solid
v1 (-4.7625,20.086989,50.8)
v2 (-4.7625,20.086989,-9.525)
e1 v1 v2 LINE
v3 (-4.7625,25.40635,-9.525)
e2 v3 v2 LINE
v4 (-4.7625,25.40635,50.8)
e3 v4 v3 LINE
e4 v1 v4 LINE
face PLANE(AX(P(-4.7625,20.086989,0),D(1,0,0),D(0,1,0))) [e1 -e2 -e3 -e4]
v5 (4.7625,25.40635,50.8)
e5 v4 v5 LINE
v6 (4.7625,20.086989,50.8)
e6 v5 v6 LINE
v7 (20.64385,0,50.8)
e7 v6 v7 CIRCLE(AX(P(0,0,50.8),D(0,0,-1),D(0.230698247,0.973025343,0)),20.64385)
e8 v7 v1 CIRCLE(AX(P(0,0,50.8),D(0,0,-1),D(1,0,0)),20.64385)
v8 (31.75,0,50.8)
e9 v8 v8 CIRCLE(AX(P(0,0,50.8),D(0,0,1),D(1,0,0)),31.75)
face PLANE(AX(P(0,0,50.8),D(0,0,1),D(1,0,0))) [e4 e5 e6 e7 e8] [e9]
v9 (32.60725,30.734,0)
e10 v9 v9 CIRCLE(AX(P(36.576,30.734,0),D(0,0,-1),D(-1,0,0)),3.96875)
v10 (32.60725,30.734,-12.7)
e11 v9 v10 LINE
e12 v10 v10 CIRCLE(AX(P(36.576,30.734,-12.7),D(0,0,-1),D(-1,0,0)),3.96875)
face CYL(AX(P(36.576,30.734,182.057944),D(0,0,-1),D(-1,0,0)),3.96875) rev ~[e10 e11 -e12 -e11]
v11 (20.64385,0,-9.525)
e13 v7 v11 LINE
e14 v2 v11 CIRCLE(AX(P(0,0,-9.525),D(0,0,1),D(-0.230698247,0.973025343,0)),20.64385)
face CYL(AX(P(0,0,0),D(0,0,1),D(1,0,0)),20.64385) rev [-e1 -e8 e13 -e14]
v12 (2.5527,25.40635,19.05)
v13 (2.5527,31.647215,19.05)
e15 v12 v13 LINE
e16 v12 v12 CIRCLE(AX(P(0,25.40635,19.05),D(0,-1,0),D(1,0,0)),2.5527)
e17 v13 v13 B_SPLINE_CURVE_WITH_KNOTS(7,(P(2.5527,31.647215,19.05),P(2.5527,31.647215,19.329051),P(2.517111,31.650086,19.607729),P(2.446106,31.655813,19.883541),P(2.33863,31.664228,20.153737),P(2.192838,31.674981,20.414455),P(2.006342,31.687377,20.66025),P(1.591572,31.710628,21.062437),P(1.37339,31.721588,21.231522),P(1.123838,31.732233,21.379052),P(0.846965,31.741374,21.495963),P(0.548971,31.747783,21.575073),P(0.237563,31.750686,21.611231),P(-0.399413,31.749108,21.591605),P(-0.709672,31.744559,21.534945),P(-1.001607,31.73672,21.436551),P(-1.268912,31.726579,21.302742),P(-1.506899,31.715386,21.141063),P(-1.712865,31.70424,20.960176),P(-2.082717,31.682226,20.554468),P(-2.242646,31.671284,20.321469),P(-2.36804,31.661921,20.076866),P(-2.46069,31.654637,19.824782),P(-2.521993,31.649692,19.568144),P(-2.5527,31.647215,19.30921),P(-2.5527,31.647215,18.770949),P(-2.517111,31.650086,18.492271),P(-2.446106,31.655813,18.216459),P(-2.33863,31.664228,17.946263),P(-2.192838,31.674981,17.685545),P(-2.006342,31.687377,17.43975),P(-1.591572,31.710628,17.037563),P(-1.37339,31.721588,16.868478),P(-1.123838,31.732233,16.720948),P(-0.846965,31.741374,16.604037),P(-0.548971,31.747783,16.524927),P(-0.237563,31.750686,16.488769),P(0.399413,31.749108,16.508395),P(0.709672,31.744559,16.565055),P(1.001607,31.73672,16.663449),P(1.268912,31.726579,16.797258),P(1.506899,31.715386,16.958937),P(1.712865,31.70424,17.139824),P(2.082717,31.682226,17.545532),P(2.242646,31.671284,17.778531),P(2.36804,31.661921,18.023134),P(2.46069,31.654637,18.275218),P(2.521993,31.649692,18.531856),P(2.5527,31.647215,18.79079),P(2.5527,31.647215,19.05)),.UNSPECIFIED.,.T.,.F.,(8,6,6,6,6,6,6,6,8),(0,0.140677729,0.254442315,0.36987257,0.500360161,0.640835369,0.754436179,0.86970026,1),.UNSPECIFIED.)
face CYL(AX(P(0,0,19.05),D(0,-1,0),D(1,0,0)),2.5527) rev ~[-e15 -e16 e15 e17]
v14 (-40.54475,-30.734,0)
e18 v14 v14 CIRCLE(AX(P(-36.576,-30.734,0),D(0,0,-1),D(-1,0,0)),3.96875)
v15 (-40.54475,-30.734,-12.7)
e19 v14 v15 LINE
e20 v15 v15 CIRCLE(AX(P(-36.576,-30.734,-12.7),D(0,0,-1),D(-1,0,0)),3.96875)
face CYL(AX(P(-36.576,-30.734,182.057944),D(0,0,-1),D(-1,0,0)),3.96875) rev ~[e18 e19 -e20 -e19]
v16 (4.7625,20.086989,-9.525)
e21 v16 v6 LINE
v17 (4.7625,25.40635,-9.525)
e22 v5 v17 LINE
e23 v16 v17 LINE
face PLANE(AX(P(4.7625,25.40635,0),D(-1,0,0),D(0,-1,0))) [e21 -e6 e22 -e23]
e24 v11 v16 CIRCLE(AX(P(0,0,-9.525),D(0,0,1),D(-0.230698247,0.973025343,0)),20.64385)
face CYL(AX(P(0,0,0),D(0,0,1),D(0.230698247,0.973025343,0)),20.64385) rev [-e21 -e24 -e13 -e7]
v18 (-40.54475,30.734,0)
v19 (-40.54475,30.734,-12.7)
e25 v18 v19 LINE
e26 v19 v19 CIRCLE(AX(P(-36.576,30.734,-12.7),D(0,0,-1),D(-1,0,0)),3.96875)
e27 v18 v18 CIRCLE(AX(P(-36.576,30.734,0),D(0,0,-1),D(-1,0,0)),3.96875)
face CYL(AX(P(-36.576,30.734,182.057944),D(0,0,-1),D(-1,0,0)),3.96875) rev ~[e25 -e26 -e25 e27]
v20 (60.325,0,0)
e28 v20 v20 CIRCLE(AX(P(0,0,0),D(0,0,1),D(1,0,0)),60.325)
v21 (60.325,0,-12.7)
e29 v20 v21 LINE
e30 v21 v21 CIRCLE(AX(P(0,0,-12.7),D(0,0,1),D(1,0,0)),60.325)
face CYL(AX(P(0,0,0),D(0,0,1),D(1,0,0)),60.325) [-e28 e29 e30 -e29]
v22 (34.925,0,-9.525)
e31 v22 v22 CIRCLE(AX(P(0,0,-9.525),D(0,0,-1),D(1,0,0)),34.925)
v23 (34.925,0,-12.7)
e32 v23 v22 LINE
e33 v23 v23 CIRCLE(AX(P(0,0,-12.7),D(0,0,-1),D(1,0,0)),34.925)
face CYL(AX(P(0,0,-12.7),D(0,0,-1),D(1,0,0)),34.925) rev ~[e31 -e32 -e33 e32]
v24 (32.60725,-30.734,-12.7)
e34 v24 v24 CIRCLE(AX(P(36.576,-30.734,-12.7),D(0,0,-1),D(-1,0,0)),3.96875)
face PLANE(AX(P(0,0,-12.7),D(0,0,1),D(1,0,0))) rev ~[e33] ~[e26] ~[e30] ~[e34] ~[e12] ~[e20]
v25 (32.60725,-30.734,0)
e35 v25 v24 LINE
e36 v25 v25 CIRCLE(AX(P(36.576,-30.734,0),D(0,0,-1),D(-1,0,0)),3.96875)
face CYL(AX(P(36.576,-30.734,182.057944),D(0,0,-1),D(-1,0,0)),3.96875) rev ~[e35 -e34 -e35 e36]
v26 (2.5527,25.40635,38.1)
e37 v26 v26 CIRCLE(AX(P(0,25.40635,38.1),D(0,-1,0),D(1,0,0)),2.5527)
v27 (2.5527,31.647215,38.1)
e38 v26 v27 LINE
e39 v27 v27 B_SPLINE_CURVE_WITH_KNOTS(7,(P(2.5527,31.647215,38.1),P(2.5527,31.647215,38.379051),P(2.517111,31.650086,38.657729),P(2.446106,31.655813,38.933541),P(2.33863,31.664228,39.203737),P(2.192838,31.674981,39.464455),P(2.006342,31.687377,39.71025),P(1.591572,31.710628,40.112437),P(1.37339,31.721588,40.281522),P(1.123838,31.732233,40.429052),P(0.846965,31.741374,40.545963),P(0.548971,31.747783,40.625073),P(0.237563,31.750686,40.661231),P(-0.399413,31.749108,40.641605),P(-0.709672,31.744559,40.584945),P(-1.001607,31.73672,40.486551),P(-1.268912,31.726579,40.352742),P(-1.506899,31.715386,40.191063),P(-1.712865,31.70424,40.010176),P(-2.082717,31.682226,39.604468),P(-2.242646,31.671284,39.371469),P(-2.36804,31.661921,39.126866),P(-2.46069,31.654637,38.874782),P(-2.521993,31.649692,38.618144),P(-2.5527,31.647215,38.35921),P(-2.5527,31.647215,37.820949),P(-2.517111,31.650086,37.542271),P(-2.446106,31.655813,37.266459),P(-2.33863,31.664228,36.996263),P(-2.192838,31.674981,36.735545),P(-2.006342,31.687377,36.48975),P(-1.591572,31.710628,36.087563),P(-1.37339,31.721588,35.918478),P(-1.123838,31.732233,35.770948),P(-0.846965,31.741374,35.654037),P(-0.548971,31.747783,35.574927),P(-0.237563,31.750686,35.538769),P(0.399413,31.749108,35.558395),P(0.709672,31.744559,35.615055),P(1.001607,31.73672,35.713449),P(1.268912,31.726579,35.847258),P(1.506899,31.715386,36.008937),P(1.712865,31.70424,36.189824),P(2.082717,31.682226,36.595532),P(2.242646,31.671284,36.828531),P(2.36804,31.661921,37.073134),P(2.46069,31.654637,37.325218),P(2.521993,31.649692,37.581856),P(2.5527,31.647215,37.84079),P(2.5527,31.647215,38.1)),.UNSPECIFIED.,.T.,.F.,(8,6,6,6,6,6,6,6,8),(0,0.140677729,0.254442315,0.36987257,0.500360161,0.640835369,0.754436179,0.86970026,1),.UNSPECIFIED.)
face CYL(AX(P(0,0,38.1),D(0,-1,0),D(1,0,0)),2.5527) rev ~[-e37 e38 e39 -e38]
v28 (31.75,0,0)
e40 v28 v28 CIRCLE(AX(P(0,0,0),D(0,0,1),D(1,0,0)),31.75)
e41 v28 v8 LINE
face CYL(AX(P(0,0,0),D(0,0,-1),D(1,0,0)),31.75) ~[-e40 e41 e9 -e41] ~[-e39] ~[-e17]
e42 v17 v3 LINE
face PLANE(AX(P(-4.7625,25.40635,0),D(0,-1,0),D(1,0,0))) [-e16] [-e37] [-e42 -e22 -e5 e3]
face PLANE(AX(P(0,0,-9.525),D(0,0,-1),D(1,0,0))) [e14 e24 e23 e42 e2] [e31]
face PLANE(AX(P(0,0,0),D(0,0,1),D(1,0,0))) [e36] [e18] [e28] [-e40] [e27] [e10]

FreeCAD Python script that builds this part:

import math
import FreeCAD as App
import Part
import Sketcher

V = App.Vector
Q = App.Units.Quantity

doc = App.newDocument("Part")
body = doc.addObject("PartDesign::Body", "Body")

# Sketch on XY plane
sketch1 = body.newObject("Sketcher::SketchObject", "Sketch")
sketch1.AttachmentSupport = (doc.getObject("XY_Plane"), [""])
sketch1.MapMode = "FlatFace"
sketch1.addGeometry([
    Part.Circle(V(0, 0, 0), V(0, 0, 1), 32),  # 0
    Part.LineSegment(V(5, 25, 0), V(5, 20, 0)),  # 1
    Part.ArcOfCircle(Part.Circle(V(0, 0, 0), V(0, 0, 1), 21), math.radians(0), math.radians(77)),  # 2
    Part.ArcOfCircle(Part.Circle(V(0, 0, 0), V(0, 0, 1), 21), math.radians(103), math.radians(360)),  # 3
    Part.LineSegment(V(-5, 20, 0), V(-5, 25, 0)),  # 4
    Part.LineSegment(V(-5, 25, 0), V(5, 25, 0)),  # 5
], False)
sketch1.addConstraint([
    Sketcher.Constraint("Coincident", 1, 2, 2, 2),
    Sketcher.Constraint("Tangent", 2, 1, 3, 2),
    Sketcher.Constraint("Coincident", 3, 1, 4, 1),
    Sketcher.Constraint("Coincident", 4, 2, 5, 1),
    Sketcher.Constraint("Coincident", 5, 2, 1, 1),
    Sketcher.Constraint("Vertical", 1),
    Sketcher.Constraint("Vertical", 4),
    Sketcher.Constraint("Horizontal", 5),
    Sketcher.Constraint("Coincident", 0, 3, -1, 1),
    Sketcher.Constraint("Coincident", 2, 3, -1, 1),
    Sketcher.Constraint("Equal", 2, 3),
    Sketcher.Constraint("PointOnObject", 2, 1, -1),
    Sketcher.Constraint("Horizontal", 1, 2, 3, 1),
    Sketcher.Constraint("Diameter", 0, Q("2.5 in")),
    Sketcher.Constraint("DistanceX", 5, 1, 5, 2, Q("0.375 in")),
    Sketcher.Constraint("Radius", 2, 20.64385),
    Sketcher.Constraint("DistanceY", 1, 2, 1, 1, 5.319361),
])
pad1 = body.newObject("PartDesign::Pad", "Pad")
pad1.Profile = sketch1
pad1.Length = Q("2 in")

# Sketch on XY plane
sketch2 = body.newObject("Sketcher::SketchObject", "Sketch001")
sketch2.AttachmentSupport = (doc.getObject("XY_Plane"), [""])
sketch2.MapMode = "FlatFace"
sketch2.addGeometry([
    Part.Circle(V(0, 0, 0), V(0, 0, 1), 60),  # 0
    Part.LineSegment(V(5, 25, 0), V(5, 20, 0)),  # 1
    Part.ArcOfCircle(Part.Circle(V(0, 0, 0), V(0, 0, 1), 21), math.radians(0), math.radians(77)),  # 2
    Part.ArcOfCircle(Part.Circle(V(0, 0, 0), V(0, 0, 1), 21), math.radians(103), math.radians(360)),  # 3
    Part.LineSegment(V(-5, 20, 0), V(-5, 25, 0)),  # 4
    Part.LineSegment(V(-5, 25, 0), V(5, 25, 0)),  # 5
], False)
sketch2.addConstraint([
    Sketcher.Constraint("Coincident", 1, 2, 2, 2),
    Sketcher.Constraint("Tangent", 2, 1, 3, 2),
    Sketcher.Constraint("Coincident", 3, 1, 4, 1),
    Sketcher.Constraint("Coincident", 4, 2, 5, 1),
    Sketcher.Constraint("Coincident", 5, 2, 1, 1),
    Sketcher.Constraint("Vertical", 1),
    Sketcher.Constraint("Vertical", 4),
    Sketcher.Constraint("Horizontal", 5),
    Sketcher.Constraint("Coincident", 0, 3, -1, 1),
    Sketcher.Constraint("Coincident", 2, 3, -1, 1),
    Sketcher.Constraint("Equal", 2, 3),
    Sketcher.Constraint("PointOnObject", 2, 1, -1),
    Sketcher.Constraint("Horizontal", 1, 2, 3, 1),
    Sketcher.Constraint("Diameter", 0, Q("4.75 in")),
    Sketcher.Constraint("DistanceX", 5, 1, 5, 2, Q("0.375 in")),
    Sketcher.Constraint("Radius", 2, 20.64385),
    Sketcher.Constraint("DistanceY", 1, 2, 1, 1, 5.319361),
])
pad2 = body.newObject("PartDesign::Pad", "Pad001")
pad2.Profile = sketch2
pad2.Length = Q("0.5 in")
pad2.Reversed = True

# Sketch on XZ plane
sketch3 = body.newObject("Sketcher::SketchObject", "Sketch002")
sketch3.AttachmentSupport = (doc.getObject("XZ_Plane"), [""])
sketch3.MapMode = "FlatFace"
sketch3.addGeometry([
    Part.Circle(V(0, 19.1, 0), V(0, 0, 1), 2.6),
    Part.Circle(V(0, 38.1, 0), V(0, 0, 1), 2.6),
], False)
sketch3.addConstraint([
    Sketcher.Constraint("Equal", 0, 1),
    Sketcher.Constraint("PointOnObject", 0, 3, -2),
    Sketcher.Constraint("PointOnObject", 1, 3, -2),
    Sketcher.Constraint("Diameter", 0, Q("0.201 in")),
    Sketcher.Constraint("DistanceY", -1, 1, 1, 3, Q("1.5 in")),
    Sketcher.Constraint("DistanceY", -1, 1, 0, 3, Q("0.75 in")),
])
pocket1 = body.newObject("PartDesign::Pocket", "Pocket")
pocket1.Profile = sketch3
pocket1.Type = "ThroughAll"

# Sketch on XY plane
sketch4 = body.newObject("Sketcher::SketchObject", "Sketch003")
sketch4.AttachmentSupport = (doc.getObject("XY_Plane"), [""])
sketch4.MapMode = "FlatFace"
sketch4.AttachmentOffset = App.Placement(V(0, 0, -0.5 * 25.4), App.Rotation())
sketch4.addGeometry([
    Part.Circle(V(0, 0, 0), V(0, 0, 1), 35),  # 0
    Part.LineSegment(V(-5, 25, 0), V(-5, 20, 0)),  # 1
    Part.ArcOfCircle(Part.Circle(V(0, 0, 0), V(0, 0, 1), 21), math.radians(103), math.radians(437)),  # 2
    Part.LineSegment(V(5, 20, 0), V(5, 25, 0)),  # 3
    Part.LineSegment(V(5, 25, 0), V(-5, 25, 0)),  # 4
], False)
sketch4.addConstraint([
    Sketcher.Constraint("Coincident", 1, 2, 2, 1),
    Sketcher.Constraint("Coincident", 2, 2, 3, 1),
    Sketcher.Constraint("Coincident", 3, 2, 4, 1),
    Sketcher.Constraint("Coincident", 4, 2, 1, 1),
    Sketcher.Constraint("Vertical", 1),
    Sketcher.Constraint("Vertical", 3),
    Sketcher.Constraint("Horizontal", 4),
    Sketcher.Constraint("Coincident", 0, 3, -1, 1),
    Sketcher.Constraint("Coincident", 2, 3, -1, 1),
    Sketcher.Constraint("Horizontal", 1, 2, 2, 2),
    Sketcher.Constraint("Diameter", 0, Q("2.75 in")),
    Sketcher.Constraint("DistanceX", 4, 2, 4, 1, Q("0.375 in")),
    Sketcher.Constraint("Radius", 2, 20.64385),
    Sketcher.Constraint("DistanceY", 1, 2, 1, 1, 5.319361),
])
pocket2 = body.newObject("PartDesign::Pocket", "Pocket001")
pocket2.Profile = sketch4
pocket2.Length = Q("0.125 in")
pocket2.Reversed = True

# Sketch on XY plane
sketch5 = body.newObject("Sketcher::SketchObject", "Sketch004")
sketch5.AttachmentSupport = (doc.getObject("XY_Plane"), [""])
sketch5.MapMode = "FlatFace"
sketch5.addGeometry([
    Part.Circle(V(-36.6, -30.7, 0), V(0, 0, 1), 4),
    Part.Circle(V(36.6, -30.7, 0), V(0, 0, 1), 4),
    Part.Circle(V(36.6, 30.7, 0), V(0, 0, 1), 4),
    Part.Circle(V(-36.6, 30.7, 0), V(0, 0, 1), 4),
], False)
sketch5.addConstraint([
    Sketcher.Constraint("Equal", 0, 1),
    Sketcher.Constraint("Equal", 1, 2),
    Sketcher.Constraint("Equal", 2, 3),
    Sketcher.Constraint("Symmetric", 0, 3, 2, 3, -1, 1),
    Sketcher.Constraint("Symmetric", 1, 3, 3, 3, -1, 1),
    Sketcher.Constraint("Symmetric", 0, 3, 1, 3, -2),
    Sketcher.Constraint("Diameter", 0, Q("0.3125 in")),
    Sketcher.Constraint("DistanceX", 0, 3, -1, 1, Q("1.44 in")),
    Sketcher.Constraint("DistanceY", 0, 3, -1, 1, Q("1.21 in")),
])
doc.recompute()
hole = body.newObject("PartDesign::Hole", "Hole")
hole.Profile = sketch5
hole.ThreadType = "None"
hole.Diameter = Q("0.3125 in")
hole.DepthType = "ThroughAll"

doc.recompute()
